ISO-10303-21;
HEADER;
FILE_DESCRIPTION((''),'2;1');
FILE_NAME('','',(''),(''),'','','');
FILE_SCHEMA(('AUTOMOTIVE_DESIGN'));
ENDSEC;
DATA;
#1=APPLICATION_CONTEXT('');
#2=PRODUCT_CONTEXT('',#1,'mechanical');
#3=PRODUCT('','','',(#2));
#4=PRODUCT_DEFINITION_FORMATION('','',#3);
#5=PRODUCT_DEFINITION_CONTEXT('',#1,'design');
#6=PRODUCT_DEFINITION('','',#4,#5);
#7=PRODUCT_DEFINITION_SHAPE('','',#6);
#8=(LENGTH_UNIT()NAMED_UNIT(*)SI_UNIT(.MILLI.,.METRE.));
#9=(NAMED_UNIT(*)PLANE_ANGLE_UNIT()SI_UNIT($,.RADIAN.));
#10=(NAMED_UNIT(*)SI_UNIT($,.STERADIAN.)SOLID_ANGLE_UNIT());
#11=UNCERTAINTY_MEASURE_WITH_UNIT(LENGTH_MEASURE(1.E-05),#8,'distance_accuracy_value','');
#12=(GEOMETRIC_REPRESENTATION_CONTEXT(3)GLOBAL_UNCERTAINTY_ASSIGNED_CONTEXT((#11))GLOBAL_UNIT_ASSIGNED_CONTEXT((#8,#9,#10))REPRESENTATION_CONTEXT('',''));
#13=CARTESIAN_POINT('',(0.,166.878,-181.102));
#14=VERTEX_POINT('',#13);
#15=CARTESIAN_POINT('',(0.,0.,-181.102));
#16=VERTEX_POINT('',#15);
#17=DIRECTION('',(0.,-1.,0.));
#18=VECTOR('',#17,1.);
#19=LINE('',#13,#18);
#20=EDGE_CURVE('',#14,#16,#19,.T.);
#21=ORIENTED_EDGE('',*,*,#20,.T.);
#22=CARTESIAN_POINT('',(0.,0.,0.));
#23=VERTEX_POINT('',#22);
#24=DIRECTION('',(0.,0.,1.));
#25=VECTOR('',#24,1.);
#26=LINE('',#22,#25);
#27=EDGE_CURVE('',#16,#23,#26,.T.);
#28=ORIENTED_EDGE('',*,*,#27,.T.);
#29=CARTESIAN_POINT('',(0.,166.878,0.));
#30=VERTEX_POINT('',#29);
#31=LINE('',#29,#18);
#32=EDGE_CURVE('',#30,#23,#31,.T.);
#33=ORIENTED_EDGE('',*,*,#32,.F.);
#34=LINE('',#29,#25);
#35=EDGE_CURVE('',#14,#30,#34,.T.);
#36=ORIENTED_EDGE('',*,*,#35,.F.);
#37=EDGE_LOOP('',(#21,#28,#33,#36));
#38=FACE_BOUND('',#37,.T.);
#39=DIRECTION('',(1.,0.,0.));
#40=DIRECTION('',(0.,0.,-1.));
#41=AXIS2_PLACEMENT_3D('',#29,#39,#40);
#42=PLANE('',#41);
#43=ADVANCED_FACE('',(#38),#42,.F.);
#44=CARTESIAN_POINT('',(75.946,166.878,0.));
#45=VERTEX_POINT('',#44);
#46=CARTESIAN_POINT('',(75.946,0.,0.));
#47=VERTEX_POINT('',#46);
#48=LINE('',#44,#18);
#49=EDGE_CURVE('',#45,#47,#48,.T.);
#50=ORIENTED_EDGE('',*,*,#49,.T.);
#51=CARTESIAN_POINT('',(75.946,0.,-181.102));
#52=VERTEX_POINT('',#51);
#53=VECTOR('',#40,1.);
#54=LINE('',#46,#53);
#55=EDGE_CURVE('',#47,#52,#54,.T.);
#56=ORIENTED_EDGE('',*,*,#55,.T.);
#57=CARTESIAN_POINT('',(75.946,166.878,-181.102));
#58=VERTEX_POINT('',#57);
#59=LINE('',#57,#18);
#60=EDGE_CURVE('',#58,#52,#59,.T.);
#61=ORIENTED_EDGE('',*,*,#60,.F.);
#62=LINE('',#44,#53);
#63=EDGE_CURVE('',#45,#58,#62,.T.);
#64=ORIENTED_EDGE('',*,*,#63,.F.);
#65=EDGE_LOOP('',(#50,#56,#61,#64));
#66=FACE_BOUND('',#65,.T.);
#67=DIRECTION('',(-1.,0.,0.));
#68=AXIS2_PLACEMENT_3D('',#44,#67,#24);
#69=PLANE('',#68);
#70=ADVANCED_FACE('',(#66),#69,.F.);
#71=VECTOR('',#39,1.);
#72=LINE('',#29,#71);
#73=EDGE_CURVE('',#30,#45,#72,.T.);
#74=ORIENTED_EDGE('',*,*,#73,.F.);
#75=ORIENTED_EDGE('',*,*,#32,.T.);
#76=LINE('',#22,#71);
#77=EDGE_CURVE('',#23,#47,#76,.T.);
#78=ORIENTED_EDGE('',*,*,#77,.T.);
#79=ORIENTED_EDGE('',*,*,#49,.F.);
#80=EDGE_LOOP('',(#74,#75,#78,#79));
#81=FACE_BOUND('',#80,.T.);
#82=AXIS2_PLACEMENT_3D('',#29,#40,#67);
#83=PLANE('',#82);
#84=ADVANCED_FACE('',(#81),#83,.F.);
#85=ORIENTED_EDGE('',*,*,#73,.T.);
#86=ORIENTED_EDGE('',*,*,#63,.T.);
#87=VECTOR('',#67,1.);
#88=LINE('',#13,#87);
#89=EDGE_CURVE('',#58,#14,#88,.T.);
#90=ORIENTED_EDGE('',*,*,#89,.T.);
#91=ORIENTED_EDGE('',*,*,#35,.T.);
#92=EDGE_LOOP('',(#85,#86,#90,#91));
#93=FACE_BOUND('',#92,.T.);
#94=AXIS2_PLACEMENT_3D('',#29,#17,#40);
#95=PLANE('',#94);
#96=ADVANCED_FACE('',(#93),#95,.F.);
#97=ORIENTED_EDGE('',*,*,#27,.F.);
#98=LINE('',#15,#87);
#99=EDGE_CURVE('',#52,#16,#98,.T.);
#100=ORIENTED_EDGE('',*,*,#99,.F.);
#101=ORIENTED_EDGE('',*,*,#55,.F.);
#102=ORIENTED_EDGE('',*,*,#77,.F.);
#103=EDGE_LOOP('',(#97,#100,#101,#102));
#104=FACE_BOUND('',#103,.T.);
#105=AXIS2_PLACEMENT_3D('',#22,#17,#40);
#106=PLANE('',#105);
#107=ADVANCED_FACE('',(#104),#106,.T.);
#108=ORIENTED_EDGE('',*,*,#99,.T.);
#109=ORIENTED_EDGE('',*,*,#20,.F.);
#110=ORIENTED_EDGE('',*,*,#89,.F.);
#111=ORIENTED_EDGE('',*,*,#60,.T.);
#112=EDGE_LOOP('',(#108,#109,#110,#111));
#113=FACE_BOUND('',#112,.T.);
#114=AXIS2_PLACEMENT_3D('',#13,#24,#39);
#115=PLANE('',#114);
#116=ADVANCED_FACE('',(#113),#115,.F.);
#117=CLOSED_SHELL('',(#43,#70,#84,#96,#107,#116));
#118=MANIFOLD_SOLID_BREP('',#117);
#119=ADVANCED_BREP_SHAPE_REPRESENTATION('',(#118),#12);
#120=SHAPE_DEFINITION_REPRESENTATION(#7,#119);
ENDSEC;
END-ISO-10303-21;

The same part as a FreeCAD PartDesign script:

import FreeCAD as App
import Part
import Sketcher
Q = App.Units.Quantity

doc = App.newDocument("Part")
body = doc.addObject("PartDesign::Body", "Body")

# Sketch on XZ plane
sketch1 = doc.addObject("Sketcher::SketchObject", "Sketch")
body.addObject(sketch1)
sketch1.AttachmentSupport = (doc.XZ_Plane, [""])
sketch1.MapMode = "FlatFace"
sketch1.addGeometry([
    Part.LineSegment(App.Vector(0, -181, 0), App.Vector(0, 0, 0)),
    Part.LineSegment(App.Vector(0, 0, 0), App.Vector(76, 0, 0)),
    Part.LineSegment(App.Vector(76, 0, 0), App.Vector(76, -181, 0)),
    Part.LineSegment(App.Vector(76, -181, 0), App.Vector(0, -181, 0)),
], False)
sketch1.addConstraint([
    Sketcher.Constraint("Coincident", 0, 2, 1, 1),
    Sketcher.Constraint("Coincident", 1, 2, 2, 1),
    Sketcher.Constraint("Coincident", 2, 2, 3, 1),
    Sketcher.Constraint("Coincident", 3, 2, 0, 1),
    Sketcher.Constraint("Vertical", 0),
    Sketcher.Constraint("Horizontal", 1),
    Sketcher.Constraint("Vertical", 2),
    Sketcher.Constraint("Horizontal", 3),
    Sketcher.Constraint("Coincident", 0, 2, -1, 1),
    Sketcher.Constraint("DistanceX", 1, 1, 1, 2, Q("2.99 in")),
    Sketcher.Constraint("DistanceY", 0, 1, 0, 2, Q("7.13 in")),
])
pad1 = doc.addObject("PartDesign::Pad", "Pad")
body.addObject(pad1)
pad1.Profile = sketch1
pad1.Length = Q("6.57 in")
pad1.Reversed = True

doc.recompute()
